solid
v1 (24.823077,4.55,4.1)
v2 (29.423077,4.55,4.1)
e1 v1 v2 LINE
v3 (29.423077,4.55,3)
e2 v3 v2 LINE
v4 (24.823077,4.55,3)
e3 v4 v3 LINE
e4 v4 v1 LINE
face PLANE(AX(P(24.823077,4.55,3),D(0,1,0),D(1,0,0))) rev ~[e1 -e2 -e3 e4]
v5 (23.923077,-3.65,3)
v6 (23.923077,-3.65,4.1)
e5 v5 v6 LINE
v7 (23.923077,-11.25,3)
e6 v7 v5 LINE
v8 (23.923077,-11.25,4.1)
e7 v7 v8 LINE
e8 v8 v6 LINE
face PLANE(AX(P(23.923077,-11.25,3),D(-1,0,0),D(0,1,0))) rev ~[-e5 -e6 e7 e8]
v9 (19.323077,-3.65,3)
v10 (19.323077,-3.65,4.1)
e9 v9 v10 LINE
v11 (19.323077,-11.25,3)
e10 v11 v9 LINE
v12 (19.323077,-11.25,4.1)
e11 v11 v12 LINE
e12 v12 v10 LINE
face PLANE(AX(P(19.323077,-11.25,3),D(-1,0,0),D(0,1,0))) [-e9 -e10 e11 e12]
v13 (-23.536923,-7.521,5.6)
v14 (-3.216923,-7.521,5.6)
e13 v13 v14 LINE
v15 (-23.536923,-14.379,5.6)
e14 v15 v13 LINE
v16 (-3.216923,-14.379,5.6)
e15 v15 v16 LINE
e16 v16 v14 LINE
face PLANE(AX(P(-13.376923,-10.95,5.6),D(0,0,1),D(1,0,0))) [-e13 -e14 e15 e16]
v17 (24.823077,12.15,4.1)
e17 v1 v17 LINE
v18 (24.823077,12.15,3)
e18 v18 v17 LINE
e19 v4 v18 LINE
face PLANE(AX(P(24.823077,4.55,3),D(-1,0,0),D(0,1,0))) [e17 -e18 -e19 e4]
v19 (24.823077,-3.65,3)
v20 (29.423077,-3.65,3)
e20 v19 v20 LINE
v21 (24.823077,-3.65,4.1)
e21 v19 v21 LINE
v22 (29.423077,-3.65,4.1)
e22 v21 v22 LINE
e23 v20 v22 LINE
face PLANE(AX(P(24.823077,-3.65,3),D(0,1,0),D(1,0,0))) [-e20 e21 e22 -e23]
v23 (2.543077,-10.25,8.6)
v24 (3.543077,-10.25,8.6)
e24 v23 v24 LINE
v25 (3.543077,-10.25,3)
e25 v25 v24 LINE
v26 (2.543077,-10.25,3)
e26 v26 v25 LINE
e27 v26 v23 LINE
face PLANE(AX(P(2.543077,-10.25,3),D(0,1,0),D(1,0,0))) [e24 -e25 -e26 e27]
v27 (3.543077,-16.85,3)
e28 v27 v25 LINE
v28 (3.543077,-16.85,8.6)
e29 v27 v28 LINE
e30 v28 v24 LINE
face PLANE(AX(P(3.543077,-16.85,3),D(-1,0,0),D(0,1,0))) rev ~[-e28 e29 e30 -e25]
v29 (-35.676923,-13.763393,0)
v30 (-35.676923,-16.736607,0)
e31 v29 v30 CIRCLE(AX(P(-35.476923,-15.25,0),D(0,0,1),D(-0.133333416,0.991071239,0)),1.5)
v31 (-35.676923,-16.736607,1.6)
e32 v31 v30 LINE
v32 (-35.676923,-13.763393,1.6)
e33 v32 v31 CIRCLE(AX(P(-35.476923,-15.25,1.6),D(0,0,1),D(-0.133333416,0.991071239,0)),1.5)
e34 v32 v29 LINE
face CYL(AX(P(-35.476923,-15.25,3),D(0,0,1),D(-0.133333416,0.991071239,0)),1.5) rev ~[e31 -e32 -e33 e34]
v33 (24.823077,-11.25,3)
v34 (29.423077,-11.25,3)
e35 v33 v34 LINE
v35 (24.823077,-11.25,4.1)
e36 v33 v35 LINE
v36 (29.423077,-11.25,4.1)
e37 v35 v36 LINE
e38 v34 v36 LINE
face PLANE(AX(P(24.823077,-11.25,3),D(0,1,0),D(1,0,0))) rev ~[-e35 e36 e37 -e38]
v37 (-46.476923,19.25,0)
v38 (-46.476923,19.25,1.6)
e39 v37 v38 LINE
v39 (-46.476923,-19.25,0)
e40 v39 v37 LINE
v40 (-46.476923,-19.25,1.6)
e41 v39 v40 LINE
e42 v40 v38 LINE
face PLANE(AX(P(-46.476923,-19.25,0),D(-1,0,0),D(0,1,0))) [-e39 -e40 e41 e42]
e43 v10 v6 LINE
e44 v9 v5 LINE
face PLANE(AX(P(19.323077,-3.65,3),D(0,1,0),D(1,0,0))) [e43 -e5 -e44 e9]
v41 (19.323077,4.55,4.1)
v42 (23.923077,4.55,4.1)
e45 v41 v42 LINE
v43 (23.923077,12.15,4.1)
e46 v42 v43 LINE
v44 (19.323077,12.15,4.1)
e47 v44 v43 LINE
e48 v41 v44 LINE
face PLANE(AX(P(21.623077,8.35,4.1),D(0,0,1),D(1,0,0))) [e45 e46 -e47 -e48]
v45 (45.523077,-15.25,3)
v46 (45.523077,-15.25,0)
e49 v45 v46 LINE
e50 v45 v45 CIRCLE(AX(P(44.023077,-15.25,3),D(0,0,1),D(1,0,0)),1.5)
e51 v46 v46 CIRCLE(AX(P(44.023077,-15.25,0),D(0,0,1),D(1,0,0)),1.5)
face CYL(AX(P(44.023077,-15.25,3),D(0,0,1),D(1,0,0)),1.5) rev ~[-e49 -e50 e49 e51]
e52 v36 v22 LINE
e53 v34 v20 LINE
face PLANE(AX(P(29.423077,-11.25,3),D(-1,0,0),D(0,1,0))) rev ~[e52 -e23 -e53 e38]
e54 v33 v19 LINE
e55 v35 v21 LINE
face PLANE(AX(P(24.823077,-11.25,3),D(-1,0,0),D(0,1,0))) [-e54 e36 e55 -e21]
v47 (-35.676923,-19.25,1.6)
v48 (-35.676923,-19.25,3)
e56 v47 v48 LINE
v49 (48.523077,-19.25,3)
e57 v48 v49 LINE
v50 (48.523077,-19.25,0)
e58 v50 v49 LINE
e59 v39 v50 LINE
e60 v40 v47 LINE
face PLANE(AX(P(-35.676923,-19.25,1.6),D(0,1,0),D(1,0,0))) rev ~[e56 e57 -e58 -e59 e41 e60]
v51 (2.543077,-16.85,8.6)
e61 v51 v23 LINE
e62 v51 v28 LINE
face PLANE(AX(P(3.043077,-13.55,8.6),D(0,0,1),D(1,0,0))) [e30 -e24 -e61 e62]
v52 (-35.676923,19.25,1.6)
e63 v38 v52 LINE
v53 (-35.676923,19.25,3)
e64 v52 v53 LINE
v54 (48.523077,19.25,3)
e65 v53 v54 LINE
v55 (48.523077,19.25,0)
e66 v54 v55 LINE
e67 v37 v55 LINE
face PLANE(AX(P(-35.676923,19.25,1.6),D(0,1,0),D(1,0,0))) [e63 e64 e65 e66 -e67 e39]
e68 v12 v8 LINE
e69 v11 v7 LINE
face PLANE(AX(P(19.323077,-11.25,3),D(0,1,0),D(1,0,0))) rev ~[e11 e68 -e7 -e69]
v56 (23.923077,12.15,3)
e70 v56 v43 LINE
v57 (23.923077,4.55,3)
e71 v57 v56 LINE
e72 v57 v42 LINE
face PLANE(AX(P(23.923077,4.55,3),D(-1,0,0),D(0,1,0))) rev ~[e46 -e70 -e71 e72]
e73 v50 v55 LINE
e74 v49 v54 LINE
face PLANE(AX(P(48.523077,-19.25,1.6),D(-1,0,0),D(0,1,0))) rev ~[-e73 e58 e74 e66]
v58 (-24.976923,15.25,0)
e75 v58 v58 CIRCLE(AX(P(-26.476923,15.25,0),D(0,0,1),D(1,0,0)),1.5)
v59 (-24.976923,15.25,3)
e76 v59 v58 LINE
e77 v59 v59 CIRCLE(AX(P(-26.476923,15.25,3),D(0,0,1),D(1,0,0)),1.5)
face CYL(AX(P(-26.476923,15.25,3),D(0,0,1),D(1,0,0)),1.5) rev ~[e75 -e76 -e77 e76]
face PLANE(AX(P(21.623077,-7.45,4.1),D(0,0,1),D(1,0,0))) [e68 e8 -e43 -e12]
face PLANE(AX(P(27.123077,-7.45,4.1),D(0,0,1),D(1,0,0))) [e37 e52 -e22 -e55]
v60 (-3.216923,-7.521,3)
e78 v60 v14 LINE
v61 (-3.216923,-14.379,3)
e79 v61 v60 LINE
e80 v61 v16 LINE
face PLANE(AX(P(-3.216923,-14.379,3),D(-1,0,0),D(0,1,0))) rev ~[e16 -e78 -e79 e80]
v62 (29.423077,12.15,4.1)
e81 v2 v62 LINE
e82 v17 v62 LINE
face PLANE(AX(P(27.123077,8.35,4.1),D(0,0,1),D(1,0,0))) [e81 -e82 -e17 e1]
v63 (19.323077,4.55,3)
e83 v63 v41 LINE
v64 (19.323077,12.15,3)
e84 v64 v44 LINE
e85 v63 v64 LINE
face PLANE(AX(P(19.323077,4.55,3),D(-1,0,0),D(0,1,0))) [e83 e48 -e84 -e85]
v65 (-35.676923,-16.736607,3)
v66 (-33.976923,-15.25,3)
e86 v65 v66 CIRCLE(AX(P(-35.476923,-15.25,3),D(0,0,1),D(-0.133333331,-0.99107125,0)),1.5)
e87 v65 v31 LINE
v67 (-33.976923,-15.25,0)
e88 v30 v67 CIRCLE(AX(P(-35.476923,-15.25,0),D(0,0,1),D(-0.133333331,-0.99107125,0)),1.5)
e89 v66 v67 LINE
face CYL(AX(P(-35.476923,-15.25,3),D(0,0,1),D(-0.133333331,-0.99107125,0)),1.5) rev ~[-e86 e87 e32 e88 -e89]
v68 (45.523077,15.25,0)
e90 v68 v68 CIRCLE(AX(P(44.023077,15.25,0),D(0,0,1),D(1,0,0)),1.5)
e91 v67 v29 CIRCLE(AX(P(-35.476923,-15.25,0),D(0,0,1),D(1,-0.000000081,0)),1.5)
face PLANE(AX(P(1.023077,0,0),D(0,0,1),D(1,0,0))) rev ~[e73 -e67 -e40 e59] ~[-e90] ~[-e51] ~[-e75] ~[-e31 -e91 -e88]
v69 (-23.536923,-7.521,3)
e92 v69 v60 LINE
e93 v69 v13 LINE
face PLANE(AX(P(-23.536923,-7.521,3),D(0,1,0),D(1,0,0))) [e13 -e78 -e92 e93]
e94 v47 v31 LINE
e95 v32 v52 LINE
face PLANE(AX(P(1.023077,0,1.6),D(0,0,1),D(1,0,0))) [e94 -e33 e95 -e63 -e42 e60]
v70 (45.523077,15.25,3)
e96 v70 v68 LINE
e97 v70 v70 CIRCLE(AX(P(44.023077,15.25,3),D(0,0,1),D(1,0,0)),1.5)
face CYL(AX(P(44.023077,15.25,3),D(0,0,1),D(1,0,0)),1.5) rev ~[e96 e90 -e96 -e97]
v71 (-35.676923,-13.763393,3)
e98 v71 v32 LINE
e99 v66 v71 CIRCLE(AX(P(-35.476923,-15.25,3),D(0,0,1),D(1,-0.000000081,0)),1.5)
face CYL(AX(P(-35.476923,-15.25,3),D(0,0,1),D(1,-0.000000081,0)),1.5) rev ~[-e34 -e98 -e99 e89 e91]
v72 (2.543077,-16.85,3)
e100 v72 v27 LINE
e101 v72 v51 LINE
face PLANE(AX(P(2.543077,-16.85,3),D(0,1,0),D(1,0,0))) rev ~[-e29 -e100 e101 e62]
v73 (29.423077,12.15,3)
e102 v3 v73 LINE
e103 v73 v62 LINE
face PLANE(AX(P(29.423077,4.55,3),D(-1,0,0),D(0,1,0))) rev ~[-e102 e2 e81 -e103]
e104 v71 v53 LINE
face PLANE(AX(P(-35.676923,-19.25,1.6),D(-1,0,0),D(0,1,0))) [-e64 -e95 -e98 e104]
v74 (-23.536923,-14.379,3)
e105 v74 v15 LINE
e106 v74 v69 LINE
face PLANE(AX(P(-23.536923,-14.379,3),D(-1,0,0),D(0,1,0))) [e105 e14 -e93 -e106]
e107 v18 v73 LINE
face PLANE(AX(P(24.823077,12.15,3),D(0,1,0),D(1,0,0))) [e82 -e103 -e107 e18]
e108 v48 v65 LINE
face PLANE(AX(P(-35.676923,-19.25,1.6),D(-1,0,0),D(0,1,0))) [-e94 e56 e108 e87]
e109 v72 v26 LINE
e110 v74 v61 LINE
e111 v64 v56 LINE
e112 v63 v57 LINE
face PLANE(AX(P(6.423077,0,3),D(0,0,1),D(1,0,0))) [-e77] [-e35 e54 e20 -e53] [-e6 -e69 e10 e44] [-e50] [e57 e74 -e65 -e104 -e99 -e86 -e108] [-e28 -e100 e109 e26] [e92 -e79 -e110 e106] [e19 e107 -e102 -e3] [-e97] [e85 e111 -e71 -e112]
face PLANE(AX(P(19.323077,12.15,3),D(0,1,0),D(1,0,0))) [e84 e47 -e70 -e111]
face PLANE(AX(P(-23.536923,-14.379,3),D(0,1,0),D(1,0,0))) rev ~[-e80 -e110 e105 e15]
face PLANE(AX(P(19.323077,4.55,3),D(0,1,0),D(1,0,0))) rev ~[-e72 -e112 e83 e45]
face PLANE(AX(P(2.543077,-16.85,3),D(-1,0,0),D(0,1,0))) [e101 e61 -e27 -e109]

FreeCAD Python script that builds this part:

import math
import FreeCAD as App
import Part
import Sketcher
from FreeCAD import Vector


def add_polygon(sketch, points):
    """Adds a closed chain of lines whose ends are joined by coincident constraints."""
    first, n = sketch.GeometryCount, len(points)
    for a, b in zip(points, points[1:] + points[:1]):
        sketch.addGeometry(Part.LineSegment(App.Vector(*a, 0), App.Vector(*b, 0)), False)
    for i in range(n):
        sketch.addConstraint(Sketcher.Constraint("Coincident", first + i, 2, first + (i + 1) % n, 1))

doc = App.newDocument("Part")
body = doc.addObject("PartDesign::Body", "Body")

# Sketch on XY plane
sketch1 = doc.addObject("Sketcher::SketchObject", "Sketch")
body.addObject(sketch1)
sketch1.AttachmentSupport = (doc.XY_Plane, [""])
sketch1.MapMode = "FlatFace"
add_polygon(sketch1, [(-46, 19), (-46, -19), (49, -19), (49, 19)])  # lines 0-3
sketch1.addConstraint([
    Sketcher.Constraint("Vertical", 0),
    Sketcher.Constraint("Horizontal", 1),
    Sketcher.Constraint("Vertical", 2),
    Sketcher.Constraint("Horizontal", 3),
    Sketcher.Constraint("DistanceX", 1, 1, 1, 2, 95.0),
    Sketcher.Constraint("DistanceY", 0, 2, 0, 1, 38.5),
    Sketcher.Constraint("DistanceY", 0, 2, -1, 1, 19.25),
    Sketcher.Constraint("DistanceX", 0, 2, -1, 1, 46.476923),
])
pad1 = doc.addObject("PartDesign::Pad", "Pad")
body.addObject(pad1)
pad1.Profile = sketch1
pad1.Length = 1.6

# Sketch on XY plane
sketch2 = doc.addObject("Sketcher::SketchObject", "Sketch001")
body.addObject(sketch2)
sketch2.AttachmentSupport = (doc.XY_Plane, [""])
sketch2.MapMode = "FlatFace"
sketch2.AttachmentOffset = App.Placement(Vector(0, 0, 1.6), App.Rotation())
add_polygon(sketch2, [(-36, 19), (-36, -19), (49, -19), (49, 19)])  # lines 0-3
sketch2.addConstraint([
    Sketcher.Constraint("Vertical", 0),
    Sketcher.Constraint("Horizontal", 1),
    Sketcher.Constraint("Vertical", 2),
    Sketcher.Constraint("Horizontal", 3),
    Sketcher.Constraint("DistanceX", 1, 1, 1, 2, 84.2),
    Sketcher.Constraint("DistanceY", 0, 2, 0, 1, 38.5),
    Sketcher.Constraint("DistanceY", 0, 2, -1, 1, 19.25),
    Sketcher.Constraint("DistanceX", 0, 2, -1, 1, 35.676923),
])
pad2 = doc.addObject("PartDesign::Pad", "Pad001")
body.addObject(pad2)
pad2.Profile = sketch2
pad2.Length = 1.4

# Sketch on XY plane
sketch3 = doc.addObject("Sketcher::SketchObject", "Sketch002")
body.addObject(sketch3)
sketch3.AttachmentSupport = (doc.XY_Plane, [""])
sketch3.MapMode = "FlatFace"
sketch3.AttachmentOffset = App.Placement(Vector(0, 0, 3), App.Rotation())
add_polygon(sketch3, [(-24, -8), (-24, -14), (-3, -14), (-3, -8)])  # lines 0-3
sketch3.addConstraint([
    Sketcher.Constraint("Vertical", 0),
    Sketcher.Constraint("Horizontal", 1),
    Sketcher.Constraint("Vertical", 2),
    Sketcher.Constraint("Horizontal", 3),
    Sketcher.Constraint("DistanceX", 1, 1, 1, 2, 20.32),
    Sketcher.Constraint("DistanceY", 0, 2, 0, 1, 6.858),
    Sketcher.Constraint("DistanceY", 0, 2, -1, 1, 14.379),
    Sketcher.Constraint("DistanceX", 0, 2, -1, 1, 23.536923),
])
pad3 = doc.addObject("PartDesign::Pad", "Pad002")
body.addObject(pad3)
pad3.Profile = sketch3
pad3.Length = 2.6

# Sketch on XY plane
sketch4 = doc.addObject("Sketcher::SketchObject", "Sketch003")
body.addObject(sketch4)
sketch4.AttachmentSupport = (doc.XY_Plane, [""])
sketch4.MapMode = "FlatFace"
sketch4.AttachmentOffset = App.Placement(Vector(0, 0, 3), App.Rotation())
add_polygon(sketch4, [(24.8, -3.6), (24.8, -11.2), (29.4, -11.2), (29.4, -3.6)])  # lines 0-3
add_polygon(sketch4, [(19.3, -3.6), (19.3, -11.2), (23.9, -11.2), (23.9, -3.6)])  # lines 4-7
add_polygon(sketch4, [(19.3, 12.2), (19.3, 4.5), (23.9, 4.5), (23.9, 12.2)])  # lines 8-11
add_polygon(sketch4, [(24.8, 12.2), (24.8, 4.5), (29.4, 4.5), (29.4, 12.2)])  # lines 12-15
sketch4.addConstraint([
    Sketcher.Constraint("Vertical", 0),
    Sketcher.Constraint("Horizontal", 1),
    Sketcher.Constraint("Vertical", 2),
    Sketcher.Constraint("Horizontal", 3),
    Sketcher.Constraint("Vertical", 4),
    Sketcher.Constraint("Horizontal", 5),
    Sketcher.Constraint("Vertical", 6),
    Sketcher.Constraint("Horizontal", 7),
    Sketcher.Constraint("Vertical", 8),
    Sketcher.Constraint("Horizontal", 9),
    Sketcher.Constraint("Vertical", 10),
    Sketcher.Constraint("Horizontal", 11),
    Sketcher.Constraint("Vertical", 12),
    Sketcher.Constraint("Horizontal", 13),
    Sketcher.Constraint("Vertical", 14),
    Sketcher.Constraint("Horizontal", 15),
    Sketcher.Constraint("Horizontal", 1, 2, 4, 2),
    Sketcher.Constraint("Horizontal", 3, 2, 6, 2),
    Sketcher.Constraint("Horizontal", 9, 2, 12, 2),
    Sketcher.Constraint("Horizontal", 11, 2, 14, 2),
    Sketcher.Constraint("Vertical", 7, 2, 8, 2),
    Sketcher.Constraint("Vertical", 6, 2, 9, 2),
    Sketcher.Constraint("Vertical", 3, 2, 12, 2),
    Sketcher.Constraint("Vertical", 2, 2, 13, 2),
    Sketcher.Constraint("Equal", 3, 5),
    Sketcher.Constraint("Equal", 6, 8),
    Sketcher.Constraint("DistanceX", 1, 1, 1, 2, 4.6),
    Sketcher.Constraint("DistanceY", 0, 2, 0, 1, 7.6),
    Sketcher.Constraint("DistanceX", 4, 2, 0, 2, 5.5),
    Sketcher.Constraint("DistanceY", 7, 2, 8, 2, 8.2),
    Sketcher.Constraint("DistanceY", 0, 2, -1, 1, 11.25),
    Sketcher.Constraint("DistanceX", -1, 1, 0, 2, 24.823077),
])
pad4 = doc.addObject("PartDesign::Pad", "Pad003")
body.addObject(pad4)
pad4.Profile = sketch4
pad4.Length = 1.1

# Sketch on XY plane
sketch5 = doc.addObject("Sketcher::SketchObject", "Sketch004")
body.addObject(sketch5)
sketch5.AttachmentSupport = (doc.XY_Plane, [""])
sketch5.MapMode = "FlatFace"
sketch5.AttachmentOffset = App.Placement(Vector(0, 0, 3), App.Rotation())
add_polygon(sketch5, [(2.5, -10.2), (2.5, -16.9), (3.5, -16.9), (3.5, -10.2)])  # lines 0-3
sketch5.addConstraint([
    Sketcher.Constraint("Vertical", 0),
    Sketcher.Constraint("Horizontal", 1),
    Sketcher.Constraint("Vertical", 2),
    Sketcher.Constraint("Horizontal", 3),
    Sketcher.Constraint("DistanceX", 1, 1, 1, 2, 1.0),
    Sketcher.Constraint("DistanceY", 0, 2, 0, 1, 6.6),
    Sketcher.Constraint("DistanceY", 0, 2, -1, 1, 16.85),
    Sketcher.Constraint("DistanceX", -1, 1, 0, 2, 2.543077),
])
pad5 = doc.addObject("PartDesign::Pad", "Pad004")
body.addObject(pad5)
pad5.Profile = sketch5
pad5.Length = 5.6

# Sketch on XY plane
sketch6 = doc.addObject("Sketcher::SketchObject", "Sketch005")
body.addObject(sketch6)
sketch6.AttachmentSupport = (doc.XY_Plane, [""])
sketch6.MapMode = "FlatFace"
sketch6.AttachmentOffset = App.Placement(Vector(0, 0, 3), App.Rotation())
sketch6.addGeometry([
    Part.Circle(Vector(-26.5, 15.2, 0), Vector(0, 0, 1), 1.5),  # 0
    Part.ArcOfCircle(Part.Circle(Vector(-35.5, -15.2, 0), Vector(0, 0, 1), 1.5), math.radians(98), math.radians(262)),  # 1
    Part.ArcOfCircle(Part.Circle(Vector(-35.5, -15.3, 0), Vector(0, 0, 1), 1.5), math.radians(-98), math.radians(0)),  # 2
    Part.ArcOfCircle(Part.Circle(Vector(-35.5, -15.2, 0), Vector(0, 0, 1), 1.5), math.radians(0), math.radians(98)),  # 3
    Part.Circle(Vector(44, 15.2, 0), Vector(0, 0, 1), 1.5),  # 4
    Part.Circle(Vector(44, -15.2, 0), Vector(0, 0, 1), 1.5),  # 5
], False)
sketch6.addConstraint([
    Sketcher.Constraint("Tangent", 1, 2, 2, 1),
    Sketcher.Constraint("Tangent", 2, 2, 3, 1),
    Sketcher.Constraint("Tangent", 3, 2, 1, 1),
    Sketcher.Constraint("Equal", 0, 1),
    Sketcher.Constraint("Equal", 3, 4),
    Sketcher.Constraint("Equal", 4, 5),
    Sketcher.Constraint("Symmetric", 4, 3, 5, 3, -1),
    Sketcher.Constraint("Horizontal", 0, 3, 4, 3),
    Sketcher.Constraint("Horizontal", 3, 3, 5, 3),
    Sketcher.Constraint("Horizontal", 5, 3, 2, 2),
    Sketcher.Constraint("Vertical", 1, 2, 3, 2),
    Sketcher.Constraint("Diameter", 0, 3.0),
    Sketcher.Constraint("DistanceX", 1, 3, 0, 3, 9.0),
    Sketcher.Constraint("DistanceY", 1, 3, 0, 3, 30.5),
    Sketcher.Constraint("DistanceX", 0, 3, 4, 3, 70.5),
    Sketcher.Constraint("DistanceX", 1, 2, 2, 3, 0.2),
    Sketcher.Constraint("DistanceX", 0, 3, -1, 1, 26.476923),
])
pocket1 = doc.addObject("PartDesign::Pocket", "Pocket")
body.addObject(pocket1)
pocket1.Profile = sketch6
pocket1.Length = 3

doc.recompute()
